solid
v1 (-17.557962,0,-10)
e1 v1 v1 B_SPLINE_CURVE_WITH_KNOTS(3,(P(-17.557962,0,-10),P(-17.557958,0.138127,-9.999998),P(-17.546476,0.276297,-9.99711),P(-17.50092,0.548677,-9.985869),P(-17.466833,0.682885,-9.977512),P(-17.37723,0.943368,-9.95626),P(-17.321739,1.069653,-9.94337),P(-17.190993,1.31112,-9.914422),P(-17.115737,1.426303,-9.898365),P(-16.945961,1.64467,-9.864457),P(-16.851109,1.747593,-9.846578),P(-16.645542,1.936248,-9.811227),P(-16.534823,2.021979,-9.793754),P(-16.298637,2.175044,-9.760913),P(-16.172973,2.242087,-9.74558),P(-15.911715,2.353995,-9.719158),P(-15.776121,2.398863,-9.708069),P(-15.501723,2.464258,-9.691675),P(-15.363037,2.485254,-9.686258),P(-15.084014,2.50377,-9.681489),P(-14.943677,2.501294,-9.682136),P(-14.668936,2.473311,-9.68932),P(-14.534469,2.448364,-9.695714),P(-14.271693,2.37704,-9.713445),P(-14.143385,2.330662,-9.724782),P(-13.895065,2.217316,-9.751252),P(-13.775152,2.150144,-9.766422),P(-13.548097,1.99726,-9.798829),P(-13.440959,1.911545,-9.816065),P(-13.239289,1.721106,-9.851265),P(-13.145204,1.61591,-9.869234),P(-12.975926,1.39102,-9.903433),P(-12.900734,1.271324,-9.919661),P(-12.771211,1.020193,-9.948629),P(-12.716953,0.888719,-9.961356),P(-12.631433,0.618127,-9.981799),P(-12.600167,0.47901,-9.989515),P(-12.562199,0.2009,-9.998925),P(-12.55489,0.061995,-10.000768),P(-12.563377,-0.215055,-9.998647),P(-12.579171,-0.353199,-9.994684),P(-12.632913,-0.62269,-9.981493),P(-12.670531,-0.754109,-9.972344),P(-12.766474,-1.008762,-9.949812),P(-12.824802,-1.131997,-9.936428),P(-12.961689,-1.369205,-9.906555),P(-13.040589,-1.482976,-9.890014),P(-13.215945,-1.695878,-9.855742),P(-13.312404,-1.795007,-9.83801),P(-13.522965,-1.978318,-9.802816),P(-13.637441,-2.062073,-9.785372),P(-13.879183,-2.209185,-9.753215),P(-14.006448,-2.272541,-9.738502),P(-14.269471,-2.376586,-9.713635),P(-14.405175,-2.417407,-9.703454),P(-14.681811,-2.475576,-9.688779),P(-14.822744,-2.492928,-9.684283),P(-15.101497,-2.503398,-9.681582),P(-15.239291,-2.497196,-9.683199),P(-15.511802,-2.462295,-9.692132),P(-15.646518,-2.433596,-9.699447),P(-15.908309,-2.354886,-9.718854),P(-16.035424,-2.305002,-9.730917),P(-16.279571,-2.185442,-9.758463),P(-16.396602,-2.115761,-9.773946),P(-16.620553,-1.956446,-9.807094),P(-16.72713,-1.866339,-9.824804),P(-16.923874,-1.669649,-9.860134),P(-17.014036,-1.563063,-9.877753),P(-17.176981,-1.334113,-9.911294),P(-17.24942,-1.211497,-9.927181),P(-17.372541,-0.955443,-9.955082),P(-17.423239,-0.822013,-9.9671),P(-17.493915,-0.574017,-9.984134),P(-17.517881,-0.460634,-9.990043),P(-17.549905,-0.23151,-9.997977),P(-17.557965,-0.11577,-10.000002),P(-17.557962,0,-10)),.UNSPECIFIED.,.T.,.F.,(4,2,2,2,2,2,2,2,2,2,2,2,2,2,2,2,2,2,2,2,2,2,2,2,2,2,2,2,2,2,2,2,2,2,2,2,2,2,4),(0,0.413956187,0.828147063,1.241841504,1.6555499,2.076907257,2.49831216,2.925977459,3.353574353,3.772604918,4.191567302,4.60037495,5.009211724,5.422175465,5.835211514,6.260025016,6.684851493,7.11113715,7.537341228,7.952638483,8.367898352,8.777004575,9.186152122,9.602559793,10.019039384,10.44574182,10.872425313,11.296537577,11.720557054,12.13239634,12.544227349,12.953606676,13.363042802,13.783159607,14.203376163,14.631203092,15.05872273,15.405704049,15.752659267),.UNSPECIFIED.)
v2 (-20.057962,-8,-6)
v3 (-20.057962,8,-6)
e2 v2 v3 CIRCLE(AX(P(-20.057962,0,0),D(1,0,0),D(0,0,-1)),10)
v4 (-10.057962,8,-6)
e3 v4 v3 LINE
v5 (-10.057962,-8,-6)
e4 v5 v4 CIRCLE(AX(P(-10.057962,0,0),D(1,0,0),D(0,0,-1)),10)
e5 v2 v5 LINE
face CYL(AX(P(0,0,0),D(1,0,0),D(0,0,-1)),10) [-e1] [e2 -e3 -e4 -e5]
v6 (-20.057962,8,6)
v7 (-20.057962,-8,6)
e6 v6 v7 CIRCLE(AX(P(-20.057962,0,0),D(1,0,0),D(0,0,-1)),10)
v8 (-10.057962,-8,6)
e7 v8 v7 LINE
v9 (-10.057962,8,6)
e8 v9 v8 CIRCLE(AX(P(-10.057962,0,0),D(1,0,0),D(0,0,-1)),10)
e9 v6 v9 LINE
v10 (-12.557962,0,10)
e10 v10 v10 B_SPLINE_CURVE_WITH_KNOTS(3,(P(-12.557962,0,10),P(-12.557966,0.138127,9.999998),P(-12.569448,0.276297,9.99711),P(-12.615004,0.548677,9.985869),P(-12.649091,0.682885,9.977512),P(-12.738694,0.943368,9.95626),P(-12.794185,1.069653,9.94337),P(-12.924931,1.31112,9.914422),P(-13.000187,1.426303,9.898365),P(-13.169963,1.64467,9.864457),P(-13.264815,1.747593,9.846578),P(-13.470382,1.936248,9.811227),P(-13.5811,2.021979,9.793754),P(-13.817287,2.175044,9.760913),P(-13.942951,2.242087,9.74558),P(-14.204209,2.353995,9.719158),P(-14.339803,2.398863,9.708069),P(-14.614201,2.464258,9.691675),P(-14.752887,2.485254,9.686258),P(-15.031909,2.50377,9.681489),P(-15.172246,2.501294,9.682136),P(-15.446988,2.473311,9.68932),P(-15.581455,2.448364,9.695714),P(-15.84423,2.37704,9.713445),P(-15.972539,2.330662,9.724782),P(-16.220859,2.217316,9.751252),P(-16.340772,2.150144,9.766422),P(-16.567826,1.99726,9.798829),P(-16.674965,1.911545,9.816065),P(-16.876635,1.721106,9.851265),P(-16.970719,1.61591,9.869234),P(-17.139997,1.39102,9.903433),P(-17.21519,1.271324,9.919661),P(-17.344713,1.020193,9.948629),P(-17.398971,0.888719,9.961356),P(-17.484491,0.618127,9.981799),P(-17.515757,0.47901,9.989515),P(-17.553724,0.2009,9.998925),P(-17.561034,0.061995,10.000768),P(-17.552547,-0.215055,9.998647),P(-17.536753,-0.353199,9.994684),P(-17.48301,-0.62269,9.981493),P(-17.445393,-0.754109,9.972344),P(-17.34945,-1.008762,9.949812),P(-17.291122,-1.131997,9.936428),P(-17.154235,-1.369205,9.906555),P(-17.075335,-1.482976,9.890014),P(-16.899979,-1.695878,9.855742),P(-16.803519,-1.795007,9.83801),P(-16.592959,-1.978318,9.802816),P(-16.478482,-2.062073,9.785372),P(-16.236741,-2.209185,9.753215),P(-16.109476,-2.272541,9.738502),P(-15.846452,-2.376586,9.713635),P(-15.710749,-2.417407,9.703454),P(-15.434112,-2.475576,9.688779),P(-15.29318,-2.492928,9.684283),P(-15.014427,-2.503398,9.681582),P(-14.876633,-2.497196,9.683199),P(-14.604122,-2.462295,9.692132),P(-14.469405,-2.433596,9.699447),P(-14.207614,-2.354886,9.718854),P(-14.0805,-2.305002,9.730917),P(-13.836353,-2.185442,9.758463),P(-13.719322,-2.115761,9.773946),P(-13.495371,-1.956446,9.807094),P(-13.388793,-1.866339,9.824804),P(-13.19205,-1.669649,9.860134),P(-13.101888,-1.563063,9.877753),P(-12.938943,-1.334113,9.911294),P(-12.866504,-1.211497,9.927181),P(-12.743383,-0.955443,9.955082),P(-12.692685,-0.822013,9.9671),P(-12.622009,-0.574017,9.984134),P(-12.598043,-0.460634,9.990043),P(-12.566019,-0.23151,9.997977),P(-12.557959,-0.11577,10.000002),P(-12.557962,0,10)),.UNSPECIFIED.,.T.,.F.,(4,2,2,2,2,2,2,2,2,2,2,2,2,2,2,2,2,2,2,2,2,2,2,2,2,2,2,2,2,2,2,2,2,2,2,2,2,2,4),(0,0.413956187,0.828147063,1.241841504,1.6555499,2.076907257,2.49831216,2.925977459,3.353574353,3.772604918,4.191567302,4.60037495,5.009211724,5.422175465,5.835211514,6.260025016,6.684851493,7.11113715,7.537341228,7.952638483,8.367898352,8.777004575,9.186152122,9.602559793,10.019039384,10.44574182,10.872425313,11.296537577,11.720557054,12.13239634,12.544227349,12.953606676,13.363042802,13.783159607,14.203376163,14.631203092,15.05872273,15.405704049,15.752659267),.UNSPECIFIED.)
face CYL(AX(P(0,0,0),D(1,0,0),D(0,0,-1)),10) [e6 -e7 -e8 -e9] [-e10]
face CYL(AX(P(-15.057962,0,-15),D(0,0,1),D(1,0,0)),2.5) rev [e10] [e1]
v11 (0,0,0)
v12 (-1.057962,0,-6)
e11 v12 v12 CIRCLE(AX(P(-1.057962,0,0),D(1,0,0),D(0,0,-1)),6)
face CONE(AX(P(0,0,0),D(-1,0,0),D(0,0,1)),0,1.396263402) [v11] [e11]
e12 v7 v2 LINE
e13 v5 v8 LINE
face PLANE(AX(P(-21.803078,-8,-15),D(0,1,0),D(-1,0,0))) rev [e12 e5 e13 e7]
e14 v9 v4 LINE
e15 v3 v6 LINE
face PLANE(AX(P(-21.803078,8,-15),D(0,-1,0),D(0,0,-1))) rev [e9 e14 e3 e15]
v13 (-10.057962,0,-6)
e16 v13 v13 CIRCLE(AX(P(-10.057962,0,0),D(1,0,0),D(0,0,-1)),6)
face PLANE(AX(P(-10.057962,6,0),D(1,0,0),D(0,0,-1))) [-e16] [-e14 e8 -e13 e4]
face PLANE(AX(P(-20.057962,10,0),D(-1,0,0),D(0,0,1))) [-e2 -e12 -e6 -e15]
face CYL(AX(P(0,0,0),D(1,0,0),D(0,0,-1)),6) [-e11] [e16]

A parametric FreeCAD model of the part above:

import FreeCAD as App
import Part
import Sketcher
Q = App.Units.Quantity

doc = App.newDocument("Part")
body = doc.addObject("PartDesign::Body", "Body")

sketch1 = body.newObject("Sketcher::SketchObject", "Sketch")
sketch1.AttachmentSupport = (doc.getObject("XY_Plane"), [""])
sketch1.MapMode = "FlatFace"
sketch1.addGeometry([
    Part.LineSegment(App.Vector(0, 0, 0), App.Vector(-1.1, 6, 0)),
    Part.LineSegment(App.Vector(-1.1, 6, 0), App.Vector(-10.1, 6, 0)),
    Part.LineSegment(App.Vector(-10.1, 6, 0), App.Vector(-10.1, 10, 0)),
    Part.LineSegment(App.Vector(-10.1, 10, 0), App.Vector(-20.1, 10, 0)),
    Part.LineSegment(App.Vector(-20.1, 10, 0), App.Vector(-20.1, 0, 0)),
    Part.LineSegment(App.Vector(-20.1, 0, 0), App.Vector(0, 0, 0)),
], False)
sketch1.addConstraint([
    Sketcher.Constraint("Coincident", 0, 2, 1, 1),
    Sketcher.Constraint("Coincident", 1, 2, 2, 1),
    Sketcher.Constraint("Coincident", 2, 2, 3, 1),
    Sketcher.Constraint("Coincident", 3, 2, 4, 1),
    Sketcher.Constraint("Coincident", 4, 2, 5, 1),
    Sketcher.Constraint("Coincident", 5, 2, 0, 1),
    Sketcher.Constraint("Horizontal", 1),
    Sketcher.Constraint("Vertical", 2),
    Sketcher.Constraint("Horizontal", 3),
    Sketcher.Constraint("Vertical", 4),
    Sketcher.Constraint("Horizontal", 5),
    Sketcher.Constraint("Coincident", 5, 2, -1, 1),
    Sketcher.Constraint("Equal", 3, 4),
    Sketcher.Constraint("DistanceX", 1, 2, 1, 1, 9.0),
    Sketcher.Constraint("DistanceX", 3, 2, 3, 1, 10.0),
    Sketcher.Constraint("DistanceY", 2, 1, 2, 2, 4.0),
    Sketcher.Constraint("Angle", 0, Q("100 deg")),
])
revolution = body.newObject("PartDesign::Revolution", "Revolution")
revolution.Profile = sketch1
revolution.ReferenceAxis = (sketch1, ["H_Axis"])
revolution.Angle = 360

sketch2 = body.newObject("Sketcher::SketchObject", "Sketch001")
sketch2.AttachmentSupport = (doc.getObject("XY_Plane"), [""])
sketch2.MapMode = "FlatFace"
sketch2.addGeometry([
    Part.Circle(App.Vector(-15.1, 0, 0), App.Vector(0, 0, 1), 2.5),
    Part.LineSegment(App.Vector(-21.8, -8, 0), App.Vector(-21.8, -15.7, 0)),
    Part.LineSegment(App.Vector(-21.8, -15.7, 0), App.Vector(-8.1, -15.7, 0)),
    Part.LineSegment(App.Vector(-8.1, -15.7, 0), App.Vector(-8.1, -8, 0)),
    Part.LineSegment(App.Vector(-8.1, -8, 0), App.Vector(-21.8, -8, 0)),
    Part.LineSegment(App.Vector(-21.8, 15.7, 0), App.Vector(-21.8, 8, 0)),
    Part.LineSegment(App.Vector(-21.8, 8, 0), App.Vector(-8.1, 8, 0)),
    Part.LineSegment(App.Vector(-8.1, 8, 0), App.Vector(-8.1, 15.7, 0)),
    Part.LineSegment(App.Vector(-8.1, 15.7, 0), App.Vector(-21.8, 15.7, 0)),
], False)
sketch2.addConstraint([
    Sketcher.Constraint("Coincident", 1, 2, 2, 1),
    Sketcher.Constraint("Coincident", 2, 2, 3, 1),
    Sketcher.Constraint("Coincident", 3, 2, 4, 1),
    Sketcher.Constraint("Coincident", 4, 2, 1, 1),
    Sketcher.Constraint("Coincident", 5, 2, 6, 1),
    Sketcher.Constraint("Coincident", 6, 2, 7, 1),
    Sketcher.Constraint("Coincident", 7, 2, 8, 1),
    Sketcher.Constraint("Coincident", 8, 2, 5, 1),
    Sketcher.Constraint("Vertical", 1),
    Sketcher.Constraint("Horizontal", 2),
    Sketcher.Constraint("Vertical", 3),
    Sketcher.Constraint("Horizontal", 4),
    Sketcher.Constraint("Vertical", 5),
    Sketcher.Constraint("Horizontal", 6),
    Sketcher.Constraint("Vertical", 7),
    Sketcher.Constraint("Horizontal", 8),
    Sketcher.Constraint("Symmetric", 4, 2, 5, 2, -1),
    Sketcher.Constraint("Symmetric", 2, 2, 7, 2, -1),
    Sketcher.Constraint("PointOnObject", 0, 3, -1),
    Sketcher.Constraint("Diameter", 0, 5.0),
    Sketcher.Constraint("DistanceY", 3, 2, -1, 1, 8.0),
    Sketcher.Constraint("DistanceY", 1, 2, 1, 1, 7.681329),
    Sketcher.Constraint("DistanceX", 2, 1, 2, 2, 13.733276),
    Sketcher.Constraint("DistanceX", 0, 3, -1, 1, 15.057962),
    Sketcher.Constraint("DistanceX", 0, 3, 2, 2, 6.98816),
])
pocket1 = body.newObject("PartDesign::Pocket", "Pocket")
pocket1.Profile = sketch2
pocket1.Length = 30
pocket1.Midplane = True

doc.recompute()
